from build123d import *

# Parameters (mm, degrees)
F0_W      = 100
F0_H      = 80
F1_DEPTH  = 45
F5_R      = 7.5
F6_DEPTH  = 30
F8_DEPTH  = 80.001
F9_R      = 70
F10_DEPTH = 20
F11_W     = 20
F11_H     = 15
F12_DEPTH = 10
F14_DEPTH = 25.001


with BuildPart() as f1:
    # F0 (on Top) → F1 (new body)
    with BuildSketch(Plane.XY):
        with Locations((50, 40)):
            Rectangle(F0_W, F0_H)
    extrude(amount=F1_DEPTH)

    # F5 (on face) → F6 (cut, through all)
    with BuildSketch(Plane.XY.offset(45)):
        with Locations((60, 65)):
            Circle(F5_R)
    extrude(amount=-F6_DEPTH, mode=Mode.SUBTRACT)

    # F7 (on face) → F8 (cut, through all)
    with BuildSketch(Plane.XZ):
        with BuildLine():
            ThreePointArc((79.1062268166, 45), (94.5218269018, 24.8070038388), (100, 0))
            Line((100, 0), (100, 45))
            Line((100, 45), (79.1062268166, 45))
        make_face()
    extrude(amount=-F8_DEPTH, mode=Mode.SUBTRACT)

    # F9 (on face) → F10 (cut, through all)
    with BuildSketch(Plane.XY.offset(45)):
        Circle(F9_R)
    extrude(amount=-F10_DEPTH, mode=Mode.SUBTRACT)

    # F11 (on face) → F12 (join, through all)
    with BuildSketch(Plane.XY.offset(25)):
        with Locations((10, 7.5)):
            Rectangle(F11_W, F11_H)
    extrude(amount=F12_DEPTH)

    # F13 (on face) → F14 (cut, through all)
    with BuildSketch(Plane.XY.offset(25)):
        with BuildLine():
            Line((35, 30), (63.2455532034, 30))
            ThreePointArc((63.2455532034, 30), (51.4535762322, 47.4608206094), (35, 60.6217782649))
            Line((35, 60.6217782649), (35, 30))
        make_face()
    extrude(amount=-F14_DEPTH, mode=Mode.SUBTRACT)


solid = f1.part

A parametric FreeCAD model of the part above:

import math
import FreeCAD as App
import Part
import Sketcher
from FreeCAD import Vector
Q = App.Units.Quantity

doc = App.newDocument("Part")
body = doc.addObject("PartDesign::Body", "Body")

sketch1 = doc.addObject("Sketcher::SketchObject", "Sketch")
body.addObject(sketch1)
sketch1.AttachmentSupport = (doc.XY_Plane, [""])
sketch1.MapMode = "FlatFace"
sketch1.addGeometry([
    Part.LineSegment(Vector(0, 80, 0), Vector(0, 0, 0)),
    Part.LineSegment(Vector(0, 0, 0), Vector(100, 0, 0)),
    Part.LineSegment(Vector(100, 0, 0), Vector(100, 80, 0)),
    Part.LineSegment(Vector(100, 80, 0), Vector(0, 80, 0)),
], False)
sketch1.addConstraint([
    Sketcher.Constraint("Coincident", 0, 2, 1, 1),
    Sketcher.Constraint("Coincident", 1, 2, 2, 1),
    Sketcher.Constraint("Coincident", 2, 2, 3, 1),
    Sketcher.Constraint("Coincident", 3, 2, 0, 1),
    Sketcher.Constraint("Vertical", 0),
    Sketcher.Constraint("Horizontal", 1),
    Sketcher.Constraint("Vertical", 2),
    Sketcher.Constraint("Horizontal", 3),
    Sketcher.Constraint("Coincident", 0, 2, -1, 1),
    Sketcher.Constraint("DistanceX", 1, 1, 1, 2, Q("100 mm")),
    Sketcher.Constraint("DistanceY", 0, 2, 0, 1, Q("80 mm")),
])
pad1 = doc.addObject("PartDesign::Pad", "Pad")
body.addObject(pad1)
pad1.Profile = sketch1
pad1.Length = 45

sketch2 = doc.addObject("Sketcher::SketchObject", "Sketch001")
body.addObject(sketch2)
sketch2.AttachmentSupport = (doc.XY_Plane, [""])
sketch2.MapMode = "FlatFace"
sketch2.AttachmentOffset = App.Placement(Vector(0, 0, 45), App.Rotation())
sketch2.addGeometry(Part.Circle(Vector(60, 65, 0), Vector(0, 0, 1), 7.5), False)
sketch2.addConstraint([
    Sketcher.Constraint("Diameter", 0, Q("15 mm")),
    Sketcher.Constraint("DistanceX", -1, 1, 0, 3, Q("60 mm")),
    Sketcher.Constraint("DistanceY", -1, 1, 0, 3, Q("65 mm")),
])
pocket1 = doc.addObject("PartDesign::Pocket", "Pocket")
body.addObject(pocket1)
pocket1.Profile = sketch2
pocket1.Length = 30

sketch3 = doc.addObject("Sketcher::SketchObject", "Sketch002")
body.addObject(sketch3)
sketch3.AttachmentSupport = (doc.XZ_Plane, [""])
sketch3.MapMode = "FlatFace"
sketch3.addGeometry([
    Part.ArcOfCircle(Part.Circle(Vector(41.0937, 0, 0), Vector(0, 0, 1), 58.9063), math.radians(0), math.radians(49.811457)),
    Part.LineSegment(Vector(100, 0, 0), Vector(100, 45, 0)),
    Part.LineSegment(Vector(100, 45, 0), Vector(79.106227, 45, 0)),
], False)
sketch3.addConstraint([
    Sketcher.Constraint("Tangent", 0, 1, 1, 1),
    Sketcher.Constraint("Coincident", 1, 2, 2, 1),
    Sketcher.Constraint("Coincident", 2, 2, 0, 2),
    Sketcher.Constraint("Vertical", 1),
    Sketcher.Constraint("Horizontal", 2),
    Sketcher.Constraint("PointOnObject", 0, 3, -1),
    Sketcher.Constraint("DistanceY", 1, 1, 1, 2, Q("45 mm")),
    Sketcher.Constraint("DistanceX", -1, 1, 0, 1, Q("100 mm")),
    Sketcher.Constraint("Radius", 0, Q("58.9063 mm")),
])
pocket2 = doc.addObject("PartDesign::Pocket", "Pocket001")
body.addObject(pocket2)
pocket2.Profile = sketch3
pocket2.Type = "ThroughAll"

sketch4 = doc.addObject("Sketcher::SketchObject", "Sketch003")
body.addObject(sketch4)
sketch4.AttachmentSupport = (doc.XY_Plane, [""])
sketch4.MapMode = "FlatFace"
sketch4.AttachmentOffset = App.Placement(Vector(0, 0, 45), App.Rotation())
sketch4.addGeometry(Part.Circle(Vector(0, 0, 0), Vector(0, 0, 1), 70), False)
sketch4.addConstraint([
    Sketcher.Constraint("Coincident", 0, 3, -1, 1),
    Sketcher.Constraint("Diameter", 0, Q("140 mm")),
])
pocket3 = doc.addObject("PartDesign::Pocket", "Pocket002")
body.addObject(pocket3)
pocket3.Profile = sketch4
pocket3.Length = 20

sketch5 = doc.addObject("Sketcher::SketchObject", "Sketch004")
body.addObject(sketch5)
sketch5.AttachmentSupport = (doc.XY_Plane, [""])
sketch5.MapMode = "FlatFace"
sketch5.AttachmentOffset = App.Placement(Vector(0, 0, 25), App.Rotation())
sketch5.addGeometry([
    Part.LineSegment(Vector(0, 15, 0), Vector(0, 0, 0)),
    Part.LineSegment(Vector(0, 0, 0), Vector(20, 0, 0)),
    Part.LineSegment(Vector(20, 0, 0), Vector(20, 15, 0)),
    Part.LineSegment(Vector(20, 15, 0), Vector(0, 15, 0)),
], False)
sketch5.addConstraint([
    Sketcher.Constraint("Coincident", 0, 2, 1, 1),
    Sketcher.Constraint("Coincident", 1, 2, 2, 1),
    Sketcher.Constraint("Coincident", 2, 2, 3, 1),
    Sketcher.Constraint("Coincident", 3, 2, 0, 1),
    Sketcher.Constraint("Vertical", 0),
    Sketcher.Constraint("Horizontal", 1),
    Sketcher.Constraint("Vertical", 2),
    Sketcher.Constraint("Horizontal", 3),
    Sketcher.Constraint("Coincident", 0, 2, -1, 1),
    Sketcher.Constraint("DistanceX", 1, 1, 1, 2, Q("20 mm")),
    Sketcher.Constraint("DistanceY", 0, 2, 0, 1, Q("15 mm")),
])
pad2 = doc.addObject("PartDesign::Pad", "Pad001")
body.addObject(pad2)
pad2.Profile = sketch5
pad2.Length = 10

sketch6 = doc.addObject("Sketcher::SketchObject", "Sketch005")
body.addObject(sketch6)
sketch6.AttachmentSupport = (doc.XY_Plane, [""])
sketch6.MapMode = "FlatFace"
sketch6.AttachmentOffset = App.Placement(Vector(0, 0, 25), App.Rotation())
sketch6.addGeometry([
    Part.LineSegment(Vector(35, 30, 0), Vector(63.245553, 30, 0)),
    Part.ArcOfCircle(Part.Circle(Vector(0, 0, 0), Vector(0, 0, 1), 70), math.radians(25.376934), math.radians(60)),
    Part.LineSegment(Vector(35, 60.621778, 0), Vector(35, 30, 0)),
], False)
sketch6.addConstraint([
    Sketcher.Constraint("Coincident", 0, 2, 1, 1),
    Sketcher.Constraint("Coincident", 1, 2, 2, 1),
    Sketcher.Constraint("Coincident", 2, 2, 0, 1),
    Sketcher.Constraint("Horizontal", 0),
    Sketcher.Constraint("Vertical", 2),
    Sketcher.Constraint("Coincident", 1, 3, -1, 1),
    Sketcher.Constraint("Radius", 1, Q("70 mm")),
    Sketcher.Constraint("DistanceY", -1, 1, 0, 2, Q("30 mm")),
    Sketcher.Constraint("DistanceX", -1, 1, 1, 2, Q("35 mm")),
])
pocket4 = doc.addObject("PartDesign::Pocket", "Pocket003")
body.addObject(pocket4)
pocket4.Profile = sketch6
pocket4.Type = "ThroughAll"

doc.recompute()
